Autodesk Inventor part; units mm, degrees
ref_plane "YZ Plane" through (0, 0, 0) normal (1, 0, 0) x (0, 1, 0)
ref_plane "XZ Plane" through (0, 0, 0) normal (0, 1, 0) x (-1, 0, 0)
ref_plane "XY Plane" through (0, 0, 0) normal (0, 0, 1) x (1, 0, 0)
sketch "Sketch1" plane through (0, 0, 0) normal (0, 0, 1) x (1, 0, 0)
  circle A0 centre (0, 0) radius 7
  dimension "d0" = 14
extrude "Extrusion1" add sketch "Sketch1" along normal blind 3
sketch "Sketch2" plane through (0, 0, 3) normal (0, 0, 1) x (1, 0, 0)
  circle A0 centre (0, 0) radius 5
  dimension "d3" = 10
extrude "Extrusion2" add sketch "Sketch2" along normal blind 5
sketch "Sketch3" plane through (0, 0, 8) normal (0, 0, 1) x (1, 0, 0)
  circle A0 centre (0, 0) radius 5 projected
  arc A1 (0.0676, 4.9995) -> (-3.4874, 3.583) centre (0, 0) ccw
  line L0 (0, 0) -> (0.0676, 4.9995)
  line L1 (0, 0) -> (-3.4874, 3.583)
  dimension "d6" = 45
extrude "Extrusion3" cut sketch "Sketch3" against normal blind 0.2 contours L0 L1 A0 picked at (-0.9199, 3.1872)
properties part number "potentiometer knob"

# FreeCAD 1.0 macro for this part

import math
import FreeCAD as App
import Part
import Sketcher

doc = App.newDocument("Part")
body = doc.addObject("PartDesign::Body", "Body")

# Sketch on XY plane
sketch1 = body.newObject("Sketcher::SketchObject", "Sketch")
sketch1.AttachmentSupport = (doc.getObject("XY_Plane"), [""])
sketch1.MapMode = "FlatFace"
sketch1.addGeometry(Part.Circle(App.Vector(0, 0, 0), App.Vector(0, 0, 1), 7), False)
sketch1.addConstraint(Sketcher.Constraint("Coincident", 0, 3, -1, 1))
sketch1.addConstraint(Sketcher.Constraint("Diameter", 0, 14.0))
pad1 = body.newObject("PartDesign::Pad", "Pad")
pad1.Profile = sketch1
pad1.Length = 3

# Sketch on XY plane
sketch2 = body.newObject("Sketcher::SketchObject", "Sketch001")
sketch2.AttachmentSupport = (doc.getObject("XY_Plane"), [""])
sketch2.MapMode = "FlatFace"
sketch2.AttachmentOffset = App.Placement(App.Vector(0, 0, 3), App.Rotation())
sketch2.addGeometry(Part.Circle(App.Vector(0, 0, 0), App.Vector(0, 0, 1), 5), False)
sketch2.addConstraint(Sketcher.Constraint("Coincident", 0, 3, -1, 1))
sketch2.addConstraint(Sketcher.Constraint("Diameter", 0, 10.0))
pad2 = body.newObject("PartDesign::Pad", "Pad001")
pad2.Profile = sketch2
pad2.Length = 5

# Sketch on XY plane
sketch3 = body.newObject("Sketcher::SketchObject", "Sketch002")
sketch3.AttachmentSupport = (doc.getObject("XY_Plane"), [""])
sketch3.MapMode = "FlatFace"
sketch3.AttachmentOffset = App.Placement(App.Vector(0, 0, 8), App.Rotation())
sketch3.addGeometry(Part.LineSegment(App.Vector(0, 0, 0), App.Vector(0.0676, 4.9995, 0)), False)
sketch3.addGeometry(Part.ArcOfCircle(Part.Circle(App.Vector(0, 0, 0), App.Vector(0, 0, 1), 5), math.radians(89.225331), math.radians(134.225342)), False)
sketch3.addGeometry(Part.LineSegment(App.Vector(-3.4874, 3.583, 0), App.Vector(0, 0, 0)), False)
sketch3.addConstraint(Sketcher.Constraint("Coincident", 0, 2, 1, 1))
sketch3.addConstraint(Sketcher.Constraint("Coincident", 1, 2, 2, 1))
sketch3.addConstraint(Sketcher.Constraint("Coincident", 2, 2, 0, 1))
sketch3.addConstraint(Sketcher.Constraint("Coincident", 1, 3, -1, 1))
sketch3.addConstraint(Sketcher.Constraint("Coincident", 2, 2, -1, 1))
sketch3.addConstraint(Sketcher.Constraint("Radius", 1, 5.0))
sketch3.addConstraint(Sketcher.Constraint("DistanceY", -1, 1, 1, 2, 3.583))
sketch3.addConstraint(Sketcher.Constraint("DistanceX", 1, 2, 0, 2, 3.555))
pocket1 = body.newObject("PartDesign::Pocket", "Pocket")
pocket1.Profile = sketch3
pocket1.Length = 0.2

doc.recompute()
